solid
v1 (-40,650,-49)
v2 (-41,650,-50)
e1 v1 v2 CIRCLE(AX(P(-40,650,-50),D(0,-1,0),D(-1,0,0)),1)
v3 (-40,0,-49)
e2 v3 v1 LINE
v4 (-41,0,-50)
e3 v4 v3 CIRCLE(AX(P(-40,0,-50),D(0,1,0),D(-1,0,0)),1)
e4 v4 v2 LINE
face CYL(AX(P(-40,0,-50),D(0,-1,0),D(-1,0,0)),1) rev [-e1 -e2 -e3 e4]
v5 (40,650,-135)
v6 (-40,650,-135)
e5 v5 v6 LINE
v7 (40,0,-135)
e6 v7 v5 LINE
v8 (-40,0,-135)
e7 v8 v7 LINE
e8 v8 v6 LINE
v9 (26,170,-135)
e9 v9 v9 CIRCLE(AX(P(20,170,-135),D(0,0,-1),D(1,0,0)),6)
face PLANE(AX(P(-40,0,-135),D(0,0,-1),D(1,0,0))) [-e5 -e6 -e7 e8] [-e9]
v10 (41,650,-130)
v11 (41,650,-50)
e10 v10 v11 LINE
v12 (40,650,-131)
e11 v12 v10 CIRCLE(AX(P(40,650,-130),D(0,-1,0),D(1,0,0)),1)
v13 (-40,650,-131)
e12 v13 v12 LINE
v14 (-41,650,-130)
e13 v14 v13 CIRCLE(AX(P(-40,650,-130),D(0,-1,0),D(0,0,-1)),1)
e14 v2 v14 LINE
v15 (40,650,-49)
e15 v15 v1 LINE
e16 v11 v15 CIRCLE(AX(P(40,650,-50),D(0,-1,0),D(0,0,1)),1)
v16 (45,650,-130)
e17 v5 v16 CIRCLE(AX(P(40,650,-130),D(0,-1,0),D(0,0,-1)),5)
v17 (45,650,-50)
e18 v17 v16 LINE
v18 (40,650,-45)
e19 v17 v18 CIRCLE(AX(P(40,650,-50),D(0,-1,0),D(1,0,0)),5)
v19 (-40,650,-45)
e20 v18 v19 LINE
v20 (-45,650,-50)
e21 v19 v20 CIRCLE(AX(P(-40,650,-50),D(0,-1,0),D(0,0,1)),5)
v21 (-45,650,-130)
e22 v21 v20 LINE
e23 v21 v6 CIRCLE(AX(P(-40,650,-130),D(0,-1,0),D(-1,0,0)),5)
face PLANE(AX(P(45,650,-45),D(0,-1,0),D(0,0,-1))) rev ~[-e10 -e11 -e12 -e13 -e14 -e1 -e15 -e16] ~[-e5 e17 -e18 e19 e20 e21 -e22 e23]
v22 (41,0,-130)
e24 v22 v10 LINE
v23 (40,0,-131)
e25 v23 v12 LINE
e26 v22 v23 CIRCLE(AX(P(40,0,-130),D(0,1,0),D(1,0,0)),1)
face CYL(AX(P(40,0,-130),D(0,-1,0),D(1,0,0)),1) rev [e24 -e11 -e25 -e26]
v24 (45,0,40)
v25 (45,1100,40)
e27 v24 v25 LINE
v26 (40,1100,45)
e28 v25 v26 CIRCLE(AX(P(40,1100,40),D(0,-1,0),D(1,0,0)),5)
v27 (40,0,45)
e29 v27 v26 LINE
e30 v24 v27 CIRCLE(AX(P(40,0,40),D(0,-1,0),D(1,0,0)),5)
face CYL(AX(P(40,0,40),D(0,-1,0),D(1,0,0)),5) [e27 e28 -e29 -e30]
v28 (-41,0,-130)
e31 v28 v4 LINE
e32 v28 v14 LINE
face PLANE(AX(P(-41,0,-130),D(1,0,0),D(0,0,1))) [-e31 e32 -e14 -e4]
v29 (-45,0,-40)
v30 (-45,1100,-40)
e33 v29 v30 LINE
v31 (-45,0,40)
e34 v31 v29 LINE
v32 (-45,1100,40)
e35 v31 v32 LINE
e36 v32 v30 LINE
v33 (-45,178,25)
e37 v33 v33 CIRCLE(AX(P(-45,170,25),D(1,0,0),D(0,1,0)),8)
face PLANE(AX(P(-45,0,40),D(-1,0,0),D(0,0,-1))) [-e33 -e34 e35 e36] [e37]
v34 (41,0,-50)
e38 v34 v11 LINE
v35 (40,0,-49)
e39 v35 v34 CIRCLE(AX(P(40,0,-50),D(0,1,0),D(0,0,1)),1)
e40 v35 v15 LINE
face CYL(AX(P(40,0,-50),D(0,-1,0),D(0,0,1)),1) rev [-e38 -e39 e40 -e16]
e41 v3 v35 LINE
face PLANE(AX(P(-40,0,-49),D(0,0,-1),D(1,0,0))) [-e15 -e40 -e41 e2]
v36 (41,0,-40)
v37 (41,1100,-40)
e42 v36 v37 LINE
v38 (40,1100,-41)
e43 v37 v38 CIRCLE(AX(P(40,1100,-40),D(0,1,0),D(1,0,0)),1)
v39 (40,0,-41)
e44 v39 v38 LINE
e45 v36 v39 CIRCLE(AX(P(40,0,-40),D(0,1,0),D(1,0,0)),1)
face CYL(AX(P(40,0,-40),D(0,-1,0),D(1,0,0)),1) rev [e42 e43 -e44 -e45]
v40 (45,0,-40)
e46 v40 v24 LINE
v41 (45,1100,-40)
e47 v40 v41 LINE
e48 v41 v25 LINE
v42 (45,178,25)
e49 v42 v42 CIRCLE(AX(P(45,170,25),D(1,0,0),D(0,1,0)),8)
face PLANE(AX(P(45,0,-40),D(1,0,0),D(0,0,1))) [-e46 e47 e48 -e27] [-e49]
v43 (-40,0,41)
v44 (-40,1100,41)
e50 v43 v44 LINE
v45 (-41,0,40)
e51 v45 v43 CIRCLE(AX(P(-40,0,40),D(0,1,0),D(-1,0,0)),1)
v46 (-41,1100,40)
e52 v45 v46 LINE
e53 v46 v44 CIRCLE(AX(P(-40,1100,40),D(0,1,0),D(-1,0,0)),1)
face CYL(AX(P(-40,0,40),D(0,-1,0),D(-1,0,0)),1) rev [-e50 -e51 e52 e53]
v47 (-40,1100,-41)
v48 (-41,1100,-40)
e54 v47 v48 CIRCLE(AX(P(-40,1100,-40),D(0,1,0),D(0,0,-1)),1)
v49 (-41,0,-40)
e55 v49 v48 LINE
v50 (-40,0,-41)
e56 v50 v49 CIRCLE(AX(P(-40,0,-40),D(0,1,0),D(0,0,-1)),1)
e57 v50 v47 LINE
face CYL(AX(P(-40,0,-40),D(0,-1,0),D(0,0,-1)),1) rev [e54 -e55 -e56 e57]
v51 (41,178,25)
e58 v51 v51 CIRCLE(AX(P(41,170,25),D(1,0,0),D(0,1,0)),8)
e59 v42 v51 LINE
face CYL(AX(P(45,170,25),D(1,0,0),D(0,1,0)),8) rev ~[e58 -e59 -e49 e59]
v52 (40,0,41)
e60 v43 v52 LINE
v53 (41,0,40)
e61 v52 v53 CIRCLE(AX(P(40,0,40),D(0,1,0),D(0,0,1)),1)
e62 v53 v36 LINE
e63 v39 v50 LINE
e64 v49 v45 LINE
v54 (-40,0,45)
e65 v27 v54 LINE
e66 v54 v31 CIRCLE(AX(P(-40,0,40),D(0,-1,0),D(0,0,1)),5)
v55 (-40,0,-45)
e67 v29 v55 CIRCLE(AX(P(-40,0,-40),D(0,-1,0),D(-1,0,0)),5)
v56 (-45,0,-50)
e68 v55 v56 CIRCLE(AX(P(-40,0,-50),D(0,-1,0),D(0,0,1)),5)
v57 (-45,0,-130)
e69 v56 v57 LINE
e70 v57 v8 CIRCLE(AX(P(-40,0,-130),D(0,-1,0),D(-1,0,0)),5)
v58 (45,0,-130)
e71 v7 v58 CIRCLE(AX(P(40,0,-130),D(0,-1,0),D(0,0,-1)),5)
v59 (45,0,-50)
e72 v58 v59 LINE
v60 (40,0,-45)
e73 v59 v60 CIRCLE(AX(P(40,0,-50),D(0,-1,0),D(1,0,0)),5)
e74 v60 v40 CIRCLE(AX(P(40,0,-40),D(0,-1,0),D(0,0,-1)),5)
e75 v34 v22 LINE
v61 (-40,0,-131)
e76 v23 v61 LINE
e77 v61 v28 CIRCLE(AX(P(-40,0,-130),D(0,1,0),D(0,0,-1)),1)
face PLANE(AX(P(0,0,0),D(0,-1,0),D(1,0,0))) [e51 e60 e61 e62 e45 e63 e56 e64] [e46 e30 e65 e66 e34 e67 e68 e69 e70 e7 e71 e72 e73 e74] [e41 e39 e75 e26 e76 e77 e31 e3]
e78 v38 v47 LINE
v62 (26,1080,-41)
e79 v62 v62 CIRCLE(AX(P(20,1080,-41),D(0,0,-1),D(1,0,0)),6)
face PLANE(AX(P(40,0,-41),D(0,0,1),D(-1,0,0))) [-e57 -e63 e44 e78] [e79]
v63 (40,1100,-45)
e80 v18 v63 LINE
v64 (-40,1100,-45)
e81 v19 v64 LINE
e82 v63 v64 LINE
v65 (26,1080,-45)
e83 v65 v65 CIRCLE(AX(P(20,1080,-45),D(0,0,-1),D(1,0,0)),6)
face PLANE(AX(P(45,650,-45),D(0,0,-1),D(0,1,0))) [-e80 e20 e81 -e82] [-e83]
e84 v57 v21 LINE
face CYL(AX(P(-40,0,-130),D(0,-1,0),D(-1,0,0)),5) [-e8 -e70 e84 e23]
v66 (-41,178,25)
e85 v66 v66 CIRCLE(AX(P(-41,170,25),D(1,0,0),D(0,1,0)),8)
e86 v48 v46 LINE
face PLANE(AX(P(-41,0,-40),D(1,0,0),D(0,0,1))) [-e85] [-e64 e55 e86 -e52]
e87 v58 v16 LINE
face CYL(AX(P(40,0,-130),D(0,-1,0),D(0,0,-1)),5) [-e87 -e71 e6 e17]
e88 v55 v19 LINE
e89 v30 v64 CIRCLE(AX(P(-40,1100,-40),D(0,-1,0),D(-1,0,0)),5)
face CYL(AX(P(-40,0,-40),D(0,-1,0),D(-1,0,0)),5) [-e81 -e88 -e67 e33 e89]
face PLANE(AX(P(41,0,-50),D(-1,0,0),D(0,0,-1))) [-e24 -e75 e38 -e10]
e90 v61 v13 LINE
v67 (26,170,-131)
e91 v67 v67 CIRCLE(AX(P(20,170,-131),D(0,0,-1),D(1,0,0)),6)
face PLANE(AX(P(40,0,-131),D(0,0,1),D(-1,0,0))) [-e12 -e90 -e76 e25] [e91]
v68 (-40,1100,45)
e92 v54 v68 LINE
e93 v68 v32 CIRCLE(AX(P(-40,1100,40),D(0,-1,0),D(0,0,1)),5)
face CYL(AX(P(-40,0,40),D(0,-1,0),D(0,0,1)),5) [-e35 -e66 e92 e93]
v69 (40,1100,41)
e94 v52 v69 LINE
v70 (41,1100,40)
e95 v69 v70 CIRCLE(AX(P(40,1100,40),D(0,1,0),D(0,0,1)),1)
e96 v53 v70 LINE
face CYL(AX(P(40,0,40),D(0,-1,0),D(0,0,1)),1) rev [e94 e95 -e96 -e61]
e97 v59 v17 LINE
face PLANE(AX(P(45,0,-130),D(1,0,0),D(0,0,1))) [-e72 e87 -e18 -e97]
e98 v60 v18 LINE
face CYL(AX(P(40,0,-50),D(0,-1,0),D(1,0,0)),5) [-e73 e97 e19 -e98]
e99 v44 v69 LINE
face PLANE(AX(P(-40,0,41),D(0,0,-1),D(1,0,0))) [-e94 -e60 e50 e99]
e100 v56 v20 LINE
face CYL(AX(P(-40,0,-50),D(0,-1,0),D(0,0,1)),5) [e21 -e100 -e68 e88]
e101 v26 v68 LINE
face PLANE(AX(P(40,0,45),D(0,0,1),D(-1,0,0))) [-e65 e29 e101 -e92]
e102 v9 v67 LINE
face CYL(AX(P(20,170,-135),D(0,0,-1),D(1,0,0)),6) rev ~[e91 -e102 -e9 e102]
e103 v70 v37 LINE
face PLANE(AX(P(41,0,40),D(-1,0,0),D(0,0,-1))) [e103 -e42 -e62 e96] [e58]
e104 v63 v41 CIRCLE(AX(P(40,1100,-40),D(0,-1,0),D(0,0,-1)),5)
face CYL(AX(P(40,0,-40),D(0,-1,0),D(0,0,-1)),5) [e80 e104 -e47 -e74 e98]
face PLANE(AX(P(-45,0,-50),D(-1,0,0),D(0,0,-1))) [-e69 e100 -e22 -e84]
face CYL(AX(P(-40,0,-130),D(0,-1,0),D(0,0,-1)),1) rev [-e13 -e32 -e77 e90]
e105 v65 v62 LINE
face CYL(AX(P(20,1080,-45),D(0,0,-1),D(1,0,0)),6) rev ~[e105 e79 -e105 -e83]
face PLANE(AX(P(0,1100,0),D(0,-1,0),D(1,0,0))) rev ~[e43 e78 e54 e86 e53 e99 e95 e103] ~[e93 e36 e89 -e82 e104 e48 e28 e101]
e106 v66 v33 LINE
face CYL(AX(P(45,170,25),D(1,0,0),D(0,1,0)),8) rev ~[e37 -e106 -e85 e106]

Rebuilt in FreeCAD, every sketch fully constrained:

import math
import FreeCAD as App
import Part
import Sketcher

V = App.Vector


def add_polygon(sketch, points):
    """Adds a closed chain of lines whose ends are joined by coincident constraints."""
    first, n = sketch.GeometryCount, len(points)
    for a, b in zip(points, points[1:] + points[:1]):
        sketch.addGeometry(Part.LineSegment(App.Vector(*a, 0), App.Vector(*b, 0)), False)
    for i in range(n):
        sketch.addConstraint(Sketcher.Constraint("Coincident", first + i, 2, first + (i + 1) % n, 1))

doc = App.newDocument("Part")
body = doc.addObject("PartDesign::Body", "Body")

# Sketch on XZ plane
sketch1 = doc.addObject("Sketcher::SketchObject", "Sketch")
body.addObject(sketch1)
sketch1.AttachmentSupport = (doc.XZ_Plane, [""])
sketch1.MapMode = "FlatFace"
sketch1.addGeometry([
    Part.ArcOfCircle(Part.Circle(V(40, 40, 0), V(0, 0, 1), 5), math.radians(0), math.radians(90)),  # 0
    Part.LineSegment(V(40, 45, 0), V(-40, 45, 0)),  # 1
    Part.ArcOfCircle(Part.Circle(V(-40, 40, 0), V(0, 0, 1), 5), math.radians(90), math.radians(180)),  # 2
    Part.LineSegment(V(-45, 40, 0), V(-45, -40, 0)),  # 3
    Part.ArcOfCircle(Part.Circle(V(-40, -40, 0), V(0, 0, 1), 5), math.radians(180), math.radians(270)),  # 4
    Part.ArcOfCircle(Part.Circle(V(-40, -50, 0), V(0, 0, 1), 5), math.radians(90), math.radians(180)),  # 5
    Part.LineSegment(V(-45, -50, 0), V(-45, -130, 0)),  # 6
    Part.ArcOfCircle(Part.Circle(V(-40, -130, 0), V(0, 0, 1), 5), math.radians(180), math.radians(270)),  # 7
    Part.LineSegment(V(-40, -135, 0), V(40, -135, 0)),  # 8
    Part.ArcOfCircle(Part.Circle(V(40, -130, 0), V(0, 0, 1), 5), math.radians(-90), math.radians(0)),  # 9
    Part.LineSegment(V(45, -130, 0), V(45, -50, 0)),  # 10
    Part.ArcOfCircle(Part.Circle(V(40, -50, 0), V(0, 0, 1), 5), math.radians(0), math.radians(90)),  # 11
    Part.ArcOfCircle(Part.Circle(V(40, -40, 0), V(0, 0, 1), 5), math.radians(-90), math.radians(0)),  # 12
    Part.LineSegment(V(45, -40, 0), V(45, 40, 0)),  # 13
    Part.LineSegment(V(-41, -130, 0), V(-41, -50, 0)),  # 14
    Part.ArcOfCircle(Part.Circle(V(-40, -50, 0), V(0, 0, 1), 1), math.radians(90), math.radians(180)),  # 15
    Part.LineSegment(V(-40, -49, 0), V(40, -49, 0)),  # 16
    Part.ArcOfCircle(Part.Circle(V(40, -50, 0), V(0, 0, 1), 1), math.radians(0), math.radians(90)),  # 17
    Part.LineSegment(V(41, -50, 0), V(41, -130, 0)),  # 18
    Part.ArcOfCircle(Part.Circle(V(40, -130, 0), V(0, 0, 1), 1), math.radians(-90), math.radians(0)),  # 19
    Part.LineSegment(V(40, -131, 0), V(-40, -131, 0)),  # 20
    Part.ArcOfCircle(Part.Circle(V(-40, -130, 0), V(0, 0, 1), 1), math.radians(180), math.radians(270)),  # 21
    Part.LineSegment(V(-41, -40, 0), V(-41, 40, 0)),  # 22
    Part.ArcOfCircle(Part.Circle(V(-40, 40, 0), V(0, 0, 1), 1), math.radians(90), math.radians(180)),  # 23
    Part.LineSegment(V(-40, 41, 0), V(40, 41, 0)),  # 24
    Part.ArcOfCircle(Part.Circle(V(40, 40, 0), V(0, 0, 1), 1), math.radians(0), math.radians(90)),  # 25
    Part.LineSegment(V(41, 40, 0), V(41, -40, 0)),  # 26
    Part.ArcOfCircle(Part.Circle(V(40, -40, 0), V(0, 0, 1), 1), math.radians(-90), math.radians(0)),  # 27
    Part.LineSegment(V(40, -41, 0), V(-40, -41, 0)),  # 28
    Part.ArcOfCircle(Part.Circle(V(-40, -40, 0), V(0, 0, 1), 1), math.radians(180), math.radians(270)),  # 29
], False)
sketch1.addConstraint([
    Sketcher.Constraint("Tangent", 0, 2, 1, 1),
    Sketcher.Constraint("Tangent", 1, 2, 2, 1),
    Sketcher.Constraint("Tangent", 2, 2, 3, 1),
    Sketcher.Constraint("Tangent", 3, 2, 4, 1),
    Sketcher.Constraint("Tangent", 4, 2, 5, 1),
    Sketcher.Constraint("Tangent", 5, 2, 6, 1),
    Sketcher.Constraint("Tangent", 6, 2, 7, 1),
    Sketcher.Constraint("Tangent", 7, 2, 8, 1),
    Sketcher.Constraint("Tangent", 8, 2, 9, 1),
    Sketcher.Constraint("Tangent", 9, 2, 10, 1),
    Sketcher.Constraint("Tangent", 10, 2, 11, 1),
    Sketcher.Constraint("Tangent", 11, 2, 12, 1),
    Sketcher.Constraint("Tangent", 12, 2, 13, 1),
    Sketcher.Constraint("Tangent", 13, 2, 0, 1),
    Sketcher.Constraint("Tangent", 14, 2, 15, 2),
    Sketcher.Constraint("Tangent", 15, 1, 16, 1),
    Sketcher.Constraint("Tangent", 16, 2, 17, 2),
    Sketcher.Constraint("Tangent", 17, 1, 18, 1),
    Sketcher.Constraint("Tangent", 18, 2, 19, 2),
    Sketcher.Constraint("Tangent", 19, 1, 20, 1),
    Sketcher.Constraint("Tangent", 20, 2, 21, 2),
    Sketcher.Constraint("Tangent", 21, 1, 14, 1),
    Sketcher.Constraint("Tangent", 22, 2, 23, 2),
    Sketcher.Constraint("Tangent", 23, 1, 24, 1),
    Sketcher.Constraint("Tangent", 24, 2, 25, 2),
    Sketcher.Constraint("Tangent", 25, 1, 26, 1),
    Sketcher.Constraint("Tangent", 26, 2, 27, 2),
    Sketcher.Constraint("Tangent", 27, 1, 28, 1),
    Sketcher.Constraint("Tangent", 28, 2, 29, 2),
    Sketcher.Constraint("Tangent", 29, 1, 22, 1),
    Sketcher.Constraint("Horizontal", 1),
    Sketcher.Constraint("Vertical", 3),
    Sketcher.Constraint("Vertical", 6),
    Sketcher.Constraint("Horizontal", 8),
    Sketcher.Constraint("Vertical", 10),
    Sketcher.Constraint("Vertical", 13),
    Sketcher.Constraint("Vertical", 14),
    Sketcher.Constraint("Horizontal", 16),
    Sketcher.Constraint("Vertical", 18),
    Sketcher.Constraint("Horizontal", 20),
    Sketcher.Constraint("Vertical", 22),
    Sketcher.Constraint("Horizontal", 24),
    Sketcher.Constraint("Vertical", 26),
    Sketcher.Constraint("Horizontal", 28),
    Sketcher.Constraint("Coincident", 15, 3, 5, 3),
    Sketcher.Constraint("Coincident", 17, 3, 11, 3),
    Sketcher.Constraint("Coincident", 19, 3, 9, 3),
    Sketcher.Constraint("Coincident", 21, 3, 7, 3),
    Sketcher.Constraint("Coincident", 23, 3, 2, 3),
    Sketcher.Constraint("Coincident", 25, 3, 0, 3),
    Sketcher.Constraint("Coincident", 27, 3, 12, 3),
    Sketcher.Constraint("Equal", 0, 2),
    Sketcher.Constraint("Equal", 2, 4),
    Sketcher.Constraint("Equal", 4, 5),
    Sketcher.Constraint("Equal", 5, 7),
    Sketcher.Constraint("Equal", 7, 9),
    Sketcher.Constraint("Equal", 9, 11),
    Sketcher.Constraint("Equal", 11, 12),
    Sketcher.Constraint("Equal", 21, 23),
    Sketcher.Constraint("Equal", 27, 29),
    Sketcher.Constraint("Symmetric", 0, 3, 4, 3, -1, 1),
    Sketcher.Constraint("Vertical", 4, 3, 5, 3),
    Sketcher.Constraint("Vertical", 0, 3, 9, 3),
    Sketcher.Constraint("Equal", 28, 3),
    Sketcher.Constraint("Equal", 3, 6),
    Sketcher.Constraint("Radius", 0, 5.0),
    Sketcher.Constraint("Radius", 15, 1.0),
    Sketcher.Constraint("DistanceX", 1, 2, 1, 1, 80.0),
])
pad1 = doc.addObject("PartDesign::Pad", "Pad")
body.addObject(pad1)
pad1.Profile = sketch1
pad1.Length = 1100
pad1.Reversed = True

# Sketch on YZ plane
sketch2 = doc.addObject("Sketcher::SketchObject", "Sketch001")
body.addObject(sketch2)
sketch2.AttachmentSupport = (doc.YZ_Plane, [""])
sketch2.MapMode = "FlatFace"
sketch2.AttachmentOffset = App.Placement(V(0, 0, 45), App.Rotation())
sketch2.addGeometry(Part.Circle(V(170, 25, 0), V(0, 0, 1), 8), False)
sketch2.addConstraint([
    Sketcher.Constraint("Diameter", 0, 16.0),
    Sketcher.Constraint("DistanceX", -1, 1, 0, 3, 170.0),
    Sketcher.Constraint("DistanceY", -1, 1, 0, 3, 25.0),
])
pocket1 = doc.addObject("PartDesign::Pocket", "Pocket")
body.addObject(pocket1)
pocket1.Profile = sketch2
pocket1.Type = "ThroughAll"

# Sketch on YZ plane
sketch3 = doc.addObject("Sketcher::SketchObject", "Sketch002")
body.addObject(sketch3)
sketch3.AttachmentSupport = (doc.YZ_Plane, [""])
sketch3.MapMode = "FlatFace"
sketch3.AttachmentOffset = App.Placement(V(0, 0, 45), App.Rotation())
add_polygon(sketch3, [(1100, -45), (650, -45), (650, -135), (1100, -135)])  # lines 0-3
sketch3.addConstraint([
    Sketcher.Constraint("Horizontal", 0),
    Sketcher.Constraint("Vertical", 1),
    Sketcher.Constraint("Horizontal", 2),
    Sketcher.Constraint("Vertical", 3),
    Sketcher.Constraint("DistanceX", 0, 2, 0, 1, 450.0),
    Sketcher.Constraint("DistanceY", 1, 2, 1, 1, 90.0),
    Sketcher.Constraint("DistanceX", -1, 1, 0, 2, 650.0),
    Sketcher.Constraint("DistanceY", 0, 2, -1, 1, 45.0),
])
pocket2 = doc.addObject("PartDesign::Pocket", "Pocket001")
body.addObject(pocket2)
pocket2.Profile = sketch3
pocket2.Type = "ThroughAll"

# Sketch on XY plane
sketch4 = doc.addObject("Sketcher::SketchObject", "Sketch003")
body.addObject(sketch4)
sketch4.AttachmentSupport = (doc.XY_Plane, [""])
sketch4.MapMode = "FlatFace"
sketch4.AttachmentOffset = App.Placement(V(0, 0, -135), App.Rotation())
sketch4.addGeometry(Part.Circle(V(20, 170, 0), V(0, 0, 1), 6), False)
sketch4.addConstraint([
    Sketcher.Constraint("Diameter", 0, 12.0),
    Sketcher.Constraint("DistanceX", -1, 1, 0, 3, 20.0),
    Sketcher.Constraint("DistanceY", -1, 1, 0, 3, 170.0),
])
pocket3 = doc.addObject("PartDesign::Pocket", "Pocket002")
body.addObject(pocket3)
pocket3.Profile = sketch4
pocket3.Length = 4
pocket3.Reversed = True

# Sketch on XY plane
sketch5 = doc.addObject("Sketcher::SketchObject", "Sketch004")
body.addObject(sketch5)
sketch5.AttachmentSupport = (doc.XY_Plane, [""])
sketch5.MapMode = "FlatFace"
sketch5.AttachmentOffset = App.Placement(V(0, 0, -45), App.Rotation())
sketch5.addGeometry(Part.Circle(V(20, 1080, 0), V(0, 0, 1), 6), False)
sketch5.addConstraint([
    Sketcher.Constraint("Diameter", 0, 12.0),
    Sketcher.Constraint("DistanceX", -1, 1, 0, 3, 20.0),
    Sketcher.Constraint("DistanceY", -1, 1, 0, 3, 1080.0),
])
pocket4 = doc.addObject("PartDesign::Pocket", "Pocket003")
body.addObject(pocket4)
pocket4.Profile = sketch5
pocket4.Length = 4
pocket4.Reversed = True

doc.recompute()
